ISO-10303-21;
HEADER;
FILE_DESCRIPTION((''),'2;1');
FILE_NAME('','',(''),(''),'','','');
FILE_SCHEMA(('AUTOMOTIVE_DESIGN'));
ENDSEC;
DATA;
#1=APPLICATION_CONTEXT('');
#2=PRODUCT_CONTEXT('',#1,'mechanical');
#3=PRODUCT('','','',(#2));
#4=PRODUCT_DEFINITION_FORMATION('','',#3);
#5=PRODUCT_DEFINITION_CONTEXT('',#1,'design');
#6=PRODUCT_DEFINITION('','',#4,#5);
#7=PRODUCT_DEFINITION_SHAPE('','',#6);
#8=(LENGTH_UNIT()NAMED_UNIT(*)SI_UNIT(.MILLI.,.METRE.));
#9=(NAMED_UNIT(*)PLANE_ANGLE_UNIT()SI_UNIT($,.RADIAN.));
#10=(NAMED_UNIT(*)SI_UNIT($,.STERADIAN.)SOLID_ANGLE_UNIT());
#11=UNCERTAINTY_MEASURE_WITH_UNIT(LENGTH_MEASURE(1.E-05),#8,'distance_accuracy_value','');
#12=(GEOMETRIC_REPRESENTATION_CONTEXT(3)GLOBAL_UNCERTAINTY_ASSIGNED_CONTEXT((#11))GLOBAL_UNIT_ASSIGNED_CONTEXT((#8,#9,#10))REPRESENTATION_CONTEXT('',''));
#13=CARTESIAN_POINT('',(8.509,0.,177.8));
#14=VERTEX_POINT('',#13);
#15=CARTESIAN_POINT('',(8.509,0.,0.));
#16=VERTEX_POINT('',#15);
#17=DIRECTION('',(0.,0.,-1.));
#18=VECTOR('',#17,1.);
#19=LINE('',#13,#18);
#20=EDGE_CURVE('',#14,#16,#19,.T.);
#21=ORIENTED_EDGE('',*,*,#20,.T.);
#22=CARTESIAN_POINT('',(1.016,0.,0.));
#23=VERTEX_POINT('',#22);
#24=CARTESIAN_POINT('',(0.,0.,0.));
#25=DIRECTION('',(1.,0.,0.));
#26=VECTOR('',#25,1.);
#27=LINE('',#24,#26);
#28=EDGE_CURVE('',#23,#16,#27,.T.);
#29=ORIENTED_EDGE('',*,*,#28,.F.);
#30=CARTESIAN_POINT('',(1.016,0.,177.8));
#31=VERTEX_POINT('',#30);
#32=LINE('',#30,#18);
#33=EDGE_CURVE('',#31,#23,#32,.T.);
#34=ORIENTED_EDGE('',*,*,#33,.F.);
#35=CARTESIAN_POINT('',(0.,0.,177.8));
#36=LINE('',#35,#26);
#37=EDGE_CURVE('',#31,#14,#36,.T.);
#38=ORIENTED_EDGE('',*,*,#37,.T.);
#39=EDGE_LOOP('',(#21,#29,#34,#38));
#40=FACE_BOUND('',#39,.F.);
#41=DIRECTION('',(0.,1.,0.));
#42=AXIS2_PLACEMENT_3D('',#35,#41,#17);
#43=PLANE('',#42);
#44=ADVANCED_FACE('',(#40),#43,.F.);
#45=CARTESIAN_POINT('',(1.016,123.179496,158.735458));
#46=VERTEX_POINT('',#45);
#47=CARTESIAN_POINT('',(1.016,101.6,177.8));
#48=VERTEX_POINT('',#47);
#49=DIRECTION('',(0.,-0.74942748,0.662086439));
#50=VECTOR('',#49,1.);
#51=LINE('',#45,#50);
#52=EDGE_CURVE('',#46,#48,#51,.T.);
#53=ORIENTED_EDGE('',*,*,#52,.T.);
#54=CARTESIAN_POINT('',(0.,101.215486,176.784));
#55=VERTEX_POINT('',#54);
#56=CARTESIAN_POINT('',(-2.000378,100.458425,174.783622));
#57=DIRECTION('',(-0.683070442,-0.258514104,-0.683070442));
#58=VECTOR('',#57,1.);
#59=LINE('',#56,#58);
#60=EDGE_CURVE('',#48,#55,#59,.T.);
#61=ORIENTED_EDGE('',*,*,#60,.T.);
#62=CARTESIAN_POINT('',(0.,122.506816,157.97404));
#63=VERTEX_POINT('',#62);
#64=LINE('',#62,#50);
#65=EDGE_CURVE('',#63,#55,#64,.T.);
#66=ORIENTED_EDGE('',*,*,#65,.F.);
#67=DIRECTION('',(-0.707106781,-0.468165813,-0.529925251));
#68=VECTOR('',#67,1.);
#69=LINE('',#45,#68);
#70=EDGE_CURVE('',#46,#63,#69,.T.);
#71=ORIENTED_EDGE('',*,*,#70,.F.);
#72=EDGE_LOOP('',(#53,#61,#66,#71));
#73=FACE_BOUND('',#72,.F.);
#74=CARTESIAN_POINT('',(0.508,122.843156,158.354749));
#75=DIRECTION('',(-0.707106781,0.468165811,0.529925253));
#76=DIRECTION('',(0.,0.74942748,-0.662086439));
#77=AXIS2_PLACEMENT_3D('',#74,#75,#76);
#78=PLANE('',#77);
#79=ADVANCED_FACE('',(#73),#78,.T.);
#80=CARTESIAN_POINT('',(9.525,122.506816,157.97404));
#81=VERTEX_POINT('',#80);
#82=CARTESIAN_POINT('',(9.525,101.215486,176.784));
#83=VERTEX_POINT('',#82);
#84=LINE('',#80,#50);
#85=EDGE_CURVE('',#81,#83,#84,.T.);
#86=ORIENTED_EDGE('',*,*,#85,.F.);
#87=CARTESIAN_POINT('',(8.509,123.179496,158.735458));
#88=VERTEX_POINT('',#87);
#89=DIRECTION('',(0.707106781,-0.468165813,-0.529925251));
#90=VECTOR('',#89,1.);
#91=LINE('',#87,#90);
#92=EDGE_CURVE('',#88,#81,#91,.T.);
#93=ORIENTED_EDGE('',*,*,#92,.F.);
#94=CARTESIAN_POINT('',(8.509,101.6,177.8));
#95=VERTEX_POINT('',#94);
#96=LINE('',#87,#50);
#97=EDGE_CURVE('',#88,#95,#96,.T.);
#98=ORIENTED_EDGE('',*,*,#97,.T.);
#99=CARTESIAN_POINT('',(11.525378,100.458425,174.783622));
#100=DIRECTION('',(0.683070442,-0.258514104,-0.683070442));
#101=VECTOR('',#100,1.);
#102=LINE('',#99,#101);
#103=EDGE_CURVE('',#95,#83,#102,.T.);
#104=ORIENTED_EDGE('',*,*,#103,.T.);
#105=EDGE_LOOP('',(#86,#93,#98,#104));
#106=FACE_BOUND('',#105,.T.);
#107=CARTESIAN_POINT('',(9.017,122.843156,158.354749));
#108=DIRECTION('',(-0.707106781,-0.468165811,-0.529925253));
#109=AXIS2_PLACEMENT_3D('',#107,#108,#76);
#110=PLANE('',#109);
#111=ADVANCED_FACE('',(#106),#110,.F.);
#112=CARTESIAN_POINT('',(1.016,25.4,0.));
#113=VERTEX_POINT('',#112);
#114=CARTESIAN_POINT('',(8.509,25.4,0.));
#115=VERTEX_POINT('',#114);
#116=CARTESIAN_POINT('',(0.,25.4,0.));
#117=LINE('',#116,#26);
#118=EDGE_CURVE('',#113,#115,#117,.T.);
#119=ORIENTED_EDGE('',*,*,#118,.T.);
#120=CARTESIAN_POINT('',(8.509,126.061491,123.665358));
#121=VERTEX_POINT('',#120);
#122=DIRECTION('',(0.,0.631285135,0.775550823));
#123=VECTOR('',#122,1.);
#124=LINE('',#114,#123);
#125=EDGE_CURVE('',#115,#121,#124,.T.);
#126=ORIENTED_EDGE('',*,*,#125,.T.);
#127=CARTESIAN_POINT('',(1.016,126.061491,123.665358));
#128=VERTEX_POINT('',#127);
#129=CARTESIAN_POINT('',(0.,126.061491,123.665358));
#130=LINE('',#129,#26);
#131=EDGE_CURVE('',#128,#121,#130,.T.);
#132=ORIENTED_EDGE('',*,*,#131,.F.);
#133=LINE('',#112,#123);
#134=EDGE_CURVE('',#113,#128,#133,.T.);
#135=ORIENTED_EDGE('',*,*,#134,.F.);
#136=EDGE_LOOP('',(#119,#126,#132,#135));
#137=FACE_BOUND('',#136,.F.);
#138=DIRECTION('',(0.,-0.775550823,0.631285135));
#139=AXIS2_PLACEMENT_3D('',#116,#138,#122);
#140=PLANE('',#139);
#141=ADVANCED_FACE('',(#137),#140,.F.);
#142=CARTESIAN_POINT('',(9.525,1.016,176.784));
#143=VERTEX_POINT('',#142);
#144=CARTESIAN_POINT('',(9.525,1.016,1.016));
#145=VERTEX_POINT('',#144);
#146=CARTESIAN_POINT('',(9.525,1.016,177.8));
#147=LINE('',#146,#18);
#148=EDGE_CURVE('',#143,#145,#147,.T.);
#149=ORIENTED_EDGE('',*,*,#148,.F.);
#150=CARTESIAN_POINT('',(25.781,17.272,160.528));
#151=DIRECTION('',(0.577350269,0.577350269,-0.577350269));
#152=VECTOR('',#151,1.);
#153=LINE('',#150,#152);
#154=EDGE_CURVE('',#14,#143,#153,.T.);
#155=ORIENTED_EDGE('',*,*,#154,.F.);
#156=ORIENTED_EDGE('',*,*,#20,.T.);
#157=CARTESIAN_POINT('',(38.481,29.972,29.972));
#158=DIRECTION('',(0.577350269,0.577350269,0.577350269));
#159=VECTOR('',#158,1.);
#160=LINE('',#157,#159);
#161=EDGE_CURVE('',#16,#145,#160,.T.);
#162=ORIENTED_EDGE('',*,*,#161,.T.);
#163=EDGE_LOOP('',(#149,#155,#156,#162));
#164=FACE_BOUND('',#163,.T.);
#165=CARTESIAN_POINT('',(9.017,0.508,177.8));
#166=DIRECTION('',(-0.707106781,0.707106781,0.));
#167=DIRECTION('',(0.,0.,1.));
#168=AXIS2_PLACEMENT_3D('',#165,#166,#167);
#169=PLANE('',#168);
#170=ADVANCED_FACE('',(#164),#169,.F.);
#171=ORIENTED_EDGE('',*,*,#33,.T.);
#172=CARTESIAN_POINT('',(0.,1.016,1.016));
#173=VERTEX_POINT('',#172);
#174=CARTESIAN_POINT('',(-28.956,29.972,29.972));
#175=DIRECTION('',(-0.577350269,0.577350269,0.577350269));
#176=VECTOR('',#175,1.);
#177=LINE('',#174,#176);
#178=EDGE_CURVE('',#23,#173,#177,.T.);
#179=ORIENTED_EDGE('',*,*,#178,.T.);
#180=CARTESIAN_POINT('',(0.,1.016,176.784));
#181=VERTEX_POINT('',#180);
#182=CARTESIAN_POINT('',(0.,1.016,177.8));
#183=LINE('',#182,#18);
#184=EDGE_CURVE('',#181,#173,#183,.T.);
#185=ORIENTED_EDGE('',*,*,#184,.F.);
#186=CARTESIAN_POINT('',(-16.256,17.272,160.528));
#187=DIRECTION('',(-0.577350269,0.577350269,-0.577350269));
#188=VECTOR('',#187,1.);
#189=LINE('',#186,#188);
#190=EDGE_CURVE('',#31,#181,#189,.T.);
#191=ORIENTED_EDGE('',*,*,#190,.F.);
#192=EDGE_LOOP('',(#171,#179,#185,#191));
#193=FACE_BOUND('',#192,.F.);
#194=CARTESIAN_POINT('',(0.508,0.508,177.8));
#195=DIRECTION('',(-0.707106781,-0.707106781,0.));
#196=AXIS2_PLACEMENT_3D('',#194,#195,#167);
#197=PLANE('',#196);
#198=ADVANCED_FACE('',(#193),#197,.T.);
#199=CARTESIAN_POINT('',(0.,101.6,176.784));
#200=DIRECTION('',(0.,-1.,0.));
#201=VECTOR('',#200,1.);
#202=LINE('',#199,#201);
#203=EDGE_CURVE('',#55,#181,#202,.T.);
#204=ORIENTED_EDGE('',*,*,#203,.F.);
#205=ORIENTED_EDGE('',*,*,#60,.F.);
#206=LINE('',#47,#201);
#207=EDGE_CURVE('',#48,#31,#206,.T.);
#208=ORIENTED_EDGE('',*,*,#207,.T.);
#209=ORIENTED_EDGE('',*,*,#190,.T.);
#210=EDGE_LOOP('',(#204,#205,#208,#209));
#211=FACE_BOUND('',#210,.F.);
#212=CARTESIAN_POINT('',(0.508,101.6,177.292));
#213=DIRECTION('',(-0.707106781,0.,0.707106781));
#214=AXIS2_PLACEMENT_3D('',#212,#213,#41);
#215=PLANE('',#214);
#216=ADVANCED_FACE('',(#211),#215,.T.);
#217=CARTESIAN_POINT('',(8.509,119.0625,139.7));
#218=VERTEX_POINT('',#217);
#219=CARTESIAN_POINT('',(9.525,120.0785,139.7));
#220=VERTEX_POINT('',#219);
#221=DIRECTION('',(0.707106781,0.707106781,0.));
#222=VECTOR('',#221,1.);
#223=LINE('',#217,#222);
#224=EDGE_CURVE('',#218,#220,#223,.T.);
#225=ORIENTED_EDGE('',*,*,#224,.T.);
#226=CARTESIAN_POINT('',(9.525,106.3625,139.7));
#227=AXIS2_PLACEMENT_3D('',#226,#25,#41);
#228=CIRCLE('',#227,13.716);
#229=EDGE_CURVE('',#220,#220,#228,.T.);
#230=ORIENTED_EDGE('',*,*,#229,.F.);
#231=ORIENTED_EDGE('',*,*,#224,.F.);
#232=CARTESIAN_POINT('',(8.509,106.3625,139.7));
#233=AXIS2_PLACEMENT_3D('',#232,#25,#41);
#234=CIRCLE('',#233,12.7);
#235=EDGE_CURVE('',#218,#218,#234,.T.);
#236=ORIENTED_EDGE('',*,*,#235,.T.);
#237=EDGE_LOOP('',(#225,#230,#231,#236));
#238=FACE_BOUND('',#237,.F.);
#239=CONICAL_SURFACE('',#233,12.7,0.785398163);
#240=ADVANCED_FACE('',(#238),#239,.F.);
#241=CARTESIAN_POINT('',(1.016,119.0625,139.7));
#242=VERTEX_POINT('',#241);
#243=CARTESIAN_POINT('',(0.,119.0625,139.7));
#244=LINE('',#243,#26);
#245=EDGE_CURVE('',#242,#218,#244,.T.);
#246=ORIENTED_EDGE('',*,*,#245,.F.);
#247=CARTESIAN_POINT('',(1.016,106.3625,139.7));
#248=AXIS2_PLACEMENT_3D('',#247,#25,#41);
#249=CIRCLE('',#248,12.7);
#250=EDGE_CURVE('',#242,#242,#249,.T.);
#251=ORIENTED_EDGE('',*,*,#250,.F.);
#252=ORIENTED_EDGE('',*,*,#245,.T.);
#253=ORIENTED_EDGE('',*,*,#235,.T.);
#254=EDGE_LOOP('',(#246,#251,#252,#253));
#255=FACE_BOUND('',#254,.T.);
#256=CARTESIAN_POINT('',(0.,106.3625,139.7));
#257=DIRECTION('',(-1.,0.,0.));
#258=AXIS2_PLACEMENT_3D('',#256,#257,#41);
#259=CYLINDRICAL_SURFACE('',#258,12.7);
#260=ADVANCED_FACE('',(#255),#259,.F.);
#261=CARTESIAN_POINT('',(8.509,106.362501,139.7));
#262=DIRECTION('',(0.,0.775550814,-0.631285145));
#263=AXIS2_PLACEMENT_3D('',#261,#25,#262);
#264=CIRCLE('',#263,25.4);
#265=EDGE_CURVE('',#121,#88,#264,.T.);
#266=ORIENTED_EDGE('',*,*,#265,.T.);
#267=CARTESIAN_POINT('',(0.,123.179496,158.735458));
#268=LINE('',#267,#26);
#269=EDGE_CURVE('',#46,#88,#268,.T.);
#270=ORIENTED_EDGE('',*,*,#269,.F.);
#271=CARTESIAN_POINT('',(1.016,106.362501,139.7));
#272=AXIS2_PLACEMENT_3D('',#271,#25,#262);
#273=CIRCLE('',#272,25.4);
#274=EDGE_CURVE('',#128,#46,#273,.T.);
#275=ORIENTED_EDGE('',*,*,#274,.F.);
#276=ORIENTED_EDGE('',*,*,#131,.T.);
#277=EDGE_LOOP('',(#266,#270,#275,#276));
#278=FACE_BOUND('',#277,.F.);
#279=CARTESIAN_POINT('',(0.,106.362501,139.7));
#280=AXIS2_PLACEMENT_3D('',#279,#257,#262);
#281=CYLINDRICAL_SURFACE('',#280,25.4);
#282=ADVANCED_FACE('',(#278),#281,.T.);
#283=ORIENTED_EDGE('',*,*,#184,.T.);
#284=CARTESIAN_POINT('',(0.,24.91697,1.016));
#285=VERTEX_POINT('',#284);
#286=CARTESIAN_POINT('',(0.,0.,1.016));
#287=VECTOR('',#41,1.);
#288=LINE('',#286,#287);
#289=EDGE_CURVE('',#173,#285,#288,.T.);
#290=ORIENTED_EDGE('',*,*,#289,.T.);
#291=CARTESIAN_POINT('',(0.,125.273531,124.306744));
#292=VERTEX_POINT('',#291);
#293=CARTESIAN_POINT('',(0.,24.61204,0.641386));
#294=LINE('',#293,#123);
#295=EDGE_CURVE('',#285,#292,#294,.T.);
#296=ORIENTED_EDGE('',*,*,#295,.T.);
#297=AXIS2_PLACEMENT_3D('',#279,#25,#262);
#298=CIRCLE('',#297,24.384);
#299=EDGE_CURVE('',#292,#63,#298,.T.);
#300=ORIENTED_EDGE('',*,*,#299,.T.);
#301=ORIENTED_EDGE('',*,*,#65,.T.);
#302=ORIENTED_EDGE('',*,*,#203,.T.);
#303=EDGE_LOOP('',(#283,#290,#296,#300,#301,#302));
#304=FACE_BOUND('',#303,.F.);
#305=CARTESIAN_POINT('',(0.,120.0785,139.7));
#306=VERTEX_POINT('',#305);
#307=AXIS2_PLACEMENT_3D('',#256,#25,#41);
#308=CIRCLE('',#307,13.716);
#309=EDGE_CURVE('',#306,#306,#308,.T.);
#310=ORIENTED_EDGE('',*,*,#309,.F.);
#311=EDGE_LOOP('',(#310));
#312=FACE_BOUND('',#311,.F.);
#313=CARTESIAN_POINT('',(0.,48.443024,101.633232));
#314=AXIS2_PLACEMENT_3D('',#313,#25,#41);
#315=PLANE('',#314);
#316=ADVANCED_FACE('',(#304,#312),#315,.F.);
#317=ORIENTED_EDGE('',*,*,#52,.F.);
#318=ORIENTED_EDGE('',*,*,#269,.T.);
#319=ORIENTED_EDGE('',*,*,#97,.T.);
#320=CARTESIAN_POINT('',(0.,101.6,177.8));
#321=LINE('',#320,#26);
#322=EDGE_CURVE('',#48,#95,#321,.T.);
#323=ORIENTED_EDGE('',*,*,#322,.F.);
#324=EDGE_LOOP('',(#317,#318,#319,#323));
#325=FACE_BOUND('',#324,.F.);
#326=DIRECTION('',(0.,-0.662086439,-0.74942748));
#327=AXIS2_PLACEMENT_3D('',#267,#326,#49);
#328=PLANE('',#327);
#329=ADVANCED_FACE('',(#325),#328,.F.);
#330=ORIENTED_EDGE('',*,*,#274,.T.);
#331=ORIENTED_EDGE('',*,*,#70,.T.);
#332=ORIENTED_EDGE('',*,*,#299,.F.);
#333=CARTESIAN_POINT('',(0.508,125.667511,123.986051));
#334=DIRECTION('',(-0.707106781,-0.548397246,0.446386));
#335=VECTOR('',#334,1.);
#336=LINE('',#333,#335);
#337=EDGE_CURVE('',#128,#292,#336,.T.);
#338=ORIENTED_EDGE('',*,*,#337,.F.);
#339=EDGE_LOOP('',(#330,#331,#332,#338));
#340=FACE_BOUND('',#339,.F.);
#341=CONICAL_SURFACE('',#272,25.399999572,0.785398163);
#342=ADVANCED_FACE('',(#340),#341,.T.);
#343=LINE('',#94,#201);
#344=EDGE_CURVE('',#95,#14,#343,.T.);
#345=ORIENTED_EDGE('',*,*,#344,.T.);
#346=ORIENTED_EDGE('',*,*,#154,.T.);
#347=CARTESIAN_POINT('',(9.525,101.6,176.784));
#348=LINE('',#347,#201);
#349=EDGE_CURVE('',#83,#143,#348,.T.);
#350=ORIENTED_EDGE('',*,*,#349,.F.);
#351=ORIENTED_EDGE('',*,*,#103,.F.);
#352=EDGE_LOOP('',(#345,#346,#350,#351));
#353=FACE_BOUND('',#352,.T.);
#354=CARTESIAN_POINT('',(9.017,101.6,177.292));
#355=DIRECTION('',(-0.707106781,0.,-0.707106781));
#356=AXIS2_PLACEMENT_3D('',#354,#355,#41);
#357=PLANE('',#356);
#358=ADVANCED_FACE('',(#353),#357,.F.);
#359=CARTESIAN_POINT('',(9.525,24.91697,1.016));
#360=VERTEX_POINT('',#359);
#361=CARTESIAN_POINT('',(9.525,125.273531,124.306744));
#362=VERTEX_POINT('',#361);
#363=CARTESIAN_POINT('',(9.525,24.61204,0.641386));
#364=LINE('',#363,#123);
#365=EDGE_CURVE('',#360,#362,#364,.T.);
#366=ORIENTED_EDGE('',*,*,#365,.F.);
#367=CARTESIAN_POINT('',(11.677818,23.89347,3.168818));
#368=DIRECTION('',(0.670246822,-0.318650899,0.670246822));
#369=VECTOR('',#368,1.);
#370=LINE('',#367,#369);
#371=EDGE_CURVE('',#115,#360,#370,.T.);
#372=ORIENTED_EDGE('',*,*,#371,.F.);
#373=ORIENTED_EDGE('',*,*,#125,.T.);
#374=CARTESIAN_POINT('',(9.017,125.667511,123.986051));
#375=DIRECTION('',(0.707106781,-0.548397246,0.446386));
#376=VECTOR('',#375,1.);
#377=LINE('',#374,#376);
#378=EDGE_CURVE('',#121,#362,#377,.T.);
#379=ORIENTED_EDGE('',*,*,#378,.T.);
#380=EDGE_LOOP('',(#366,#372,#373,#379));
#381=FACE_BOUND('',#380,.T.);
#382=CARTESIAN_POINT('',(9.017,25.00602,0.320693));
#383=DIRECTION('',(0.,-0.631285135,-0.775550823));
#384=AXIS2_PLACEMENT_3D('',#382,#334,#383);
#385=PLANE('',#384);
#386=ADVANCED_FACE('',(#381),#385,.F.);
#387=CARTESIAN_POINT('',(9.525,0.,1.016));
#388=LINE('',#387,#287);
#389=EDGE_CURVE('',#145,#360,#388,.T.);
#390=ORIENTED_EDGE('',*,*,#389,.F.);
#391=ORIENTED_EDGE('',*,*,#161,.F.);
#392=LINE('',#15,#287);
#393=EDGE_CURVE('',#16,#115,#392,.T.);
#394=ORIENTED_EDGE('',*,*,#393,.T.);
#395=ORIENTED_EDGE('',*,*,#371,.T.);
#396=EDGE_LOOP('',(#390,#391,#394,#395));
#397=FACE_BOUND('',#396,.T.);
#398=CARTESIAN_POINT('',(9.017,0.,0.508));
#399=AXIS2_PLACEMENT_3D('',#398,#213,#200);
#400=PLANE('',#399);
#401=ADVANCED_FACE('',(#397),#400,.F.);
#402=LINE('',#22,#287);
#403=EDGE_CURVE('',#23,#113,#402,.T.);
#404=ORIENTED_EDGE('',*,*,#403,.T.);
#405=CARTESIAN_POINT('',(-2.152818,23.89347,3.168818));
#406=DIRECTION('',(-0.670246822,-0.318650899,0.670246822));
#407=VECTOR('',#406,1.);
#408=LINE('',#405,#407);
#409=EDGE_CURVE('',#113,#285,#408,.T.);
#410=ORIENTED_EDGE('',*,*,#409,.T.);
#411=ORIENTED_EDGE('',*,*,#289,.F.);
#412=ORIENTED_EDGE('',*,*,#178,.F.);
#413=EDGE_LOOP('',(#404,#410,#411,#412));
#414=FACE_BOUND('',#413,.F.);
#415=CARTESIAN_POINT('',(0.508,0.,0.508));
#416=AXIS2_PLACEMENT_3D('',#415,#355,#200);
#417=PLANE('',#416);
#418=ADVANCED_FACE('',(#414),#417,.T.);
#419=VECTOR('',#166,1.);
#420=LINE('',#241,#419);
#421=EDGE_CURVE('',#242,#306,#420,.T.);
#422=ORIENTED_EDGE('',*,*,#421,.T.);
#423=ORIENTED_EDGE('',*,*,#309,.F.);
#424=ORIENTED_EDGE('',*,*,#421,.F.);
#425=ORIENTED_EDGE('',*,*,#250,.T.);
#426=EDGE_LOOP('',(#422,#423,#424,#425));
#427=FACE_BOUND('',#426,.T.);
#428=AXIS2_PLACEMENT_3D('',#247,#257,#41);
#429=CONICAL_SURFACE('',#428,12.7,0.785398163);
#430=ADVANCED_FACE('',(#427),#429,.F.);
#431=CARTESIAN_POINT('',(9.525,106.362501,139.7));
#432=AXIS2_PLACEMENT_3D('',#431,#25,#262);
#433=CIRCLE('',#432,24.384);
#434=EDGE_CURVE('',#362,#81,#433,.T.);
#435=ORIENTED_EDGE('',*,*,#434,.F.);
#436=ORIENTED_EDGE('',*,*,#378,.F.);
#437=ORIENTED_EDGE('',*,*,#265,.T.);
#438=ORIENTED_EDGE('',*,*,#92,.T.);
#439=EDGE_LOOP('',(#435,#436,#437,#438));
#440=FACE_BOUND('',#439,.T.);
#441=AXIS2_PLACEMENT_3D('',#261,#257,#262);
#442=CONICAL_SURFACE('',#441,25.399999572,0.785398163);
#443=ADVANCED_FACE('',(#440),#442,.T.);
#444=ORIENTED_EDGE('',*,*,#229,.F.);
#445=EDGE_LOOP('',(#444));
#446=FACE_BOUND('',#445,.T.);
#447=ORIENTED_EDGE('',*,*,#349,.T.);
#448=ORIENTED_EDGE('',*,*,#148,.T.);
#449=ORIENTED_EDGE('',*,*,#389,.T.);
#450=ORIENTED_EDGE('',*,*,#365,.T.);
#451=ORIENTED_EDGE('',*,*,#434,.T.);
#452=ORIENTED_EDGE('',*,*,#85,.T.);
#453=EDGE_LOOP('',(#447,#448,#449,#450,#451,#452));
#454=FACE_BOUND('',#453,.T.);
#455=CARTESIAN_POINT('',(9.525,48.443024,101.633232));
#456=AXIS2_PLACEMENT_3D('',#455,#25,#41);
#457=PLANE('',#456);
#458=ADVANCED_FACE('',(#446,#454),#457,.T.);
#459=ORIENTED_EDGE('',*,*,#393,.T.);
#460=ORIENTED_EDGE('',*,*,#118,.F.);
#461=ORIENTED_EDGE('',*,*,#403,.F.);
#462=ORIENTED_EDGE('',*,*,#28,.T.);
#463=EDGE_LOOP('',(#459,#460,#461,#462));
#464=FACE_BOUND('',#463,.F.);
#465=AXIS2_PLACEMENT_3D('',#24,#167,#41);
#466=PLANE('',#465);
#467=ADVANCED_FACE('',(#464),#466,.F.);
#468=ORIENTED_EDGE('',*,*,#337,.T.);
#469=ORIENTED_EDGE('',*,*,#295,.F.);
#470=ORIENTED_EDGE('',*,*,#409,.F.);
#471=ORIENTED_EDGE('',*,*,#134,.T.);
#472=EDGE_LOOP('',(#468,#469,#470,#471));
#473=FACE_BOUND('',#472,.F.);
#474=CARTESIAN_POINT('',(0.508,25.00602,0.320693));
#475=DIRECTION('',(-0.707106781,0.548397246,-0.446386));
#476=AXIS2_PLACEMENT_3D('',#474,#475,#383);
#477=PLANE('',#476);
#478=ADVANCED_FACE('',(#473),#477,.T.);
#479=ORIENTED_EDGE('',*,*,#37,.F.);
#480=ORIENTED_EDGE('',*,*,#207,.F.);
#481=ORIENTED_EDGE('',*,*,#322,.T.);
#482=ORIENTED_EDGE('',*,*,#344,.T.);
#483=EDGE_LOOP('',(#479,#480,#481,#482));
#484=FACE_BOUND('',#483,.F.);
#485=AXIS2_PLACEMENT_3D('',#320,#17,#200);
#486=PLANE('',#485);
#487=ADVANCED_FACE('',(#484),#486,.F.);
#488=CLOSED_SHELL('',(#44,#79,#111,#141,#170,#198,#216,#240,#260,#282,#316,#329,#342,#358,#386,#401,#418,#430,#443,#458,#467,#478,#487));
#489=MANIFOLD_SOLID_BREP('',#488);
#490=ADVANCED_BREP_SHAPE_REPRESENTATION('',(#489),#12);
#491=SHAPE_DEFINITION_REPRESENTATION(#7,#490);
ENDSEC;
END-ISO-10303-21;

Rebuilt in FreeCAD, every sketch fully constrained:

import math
import FreeCAD as App
import Part
import Sketcher

V = App.Vector
Q = App.Units.Quantity


def edges_at(feature, points):
    """Names of the edges that pass closest to the given points."""
    edges = feature.Shape.Edges
    near = lambda p: min(range(len(edges)), key=lambda i: edges[i].distToShape(Part.Vertex(*p))[0])
    return sorted({f"Edge{near(p) + 1}" for p in points})

doc = App.newDocument("Part")
body = doc.addObject("PartDesign::Body", "Body")

sketch1 = body.newObject("Sketcher::SketchObject", "Sketch")
sketch1.AttachmentSupport = (doc.getObject("YZ_Plane"), [""])
sketch1.MapMode = "FlatFace"
sketch1.addGeometry(Part.LineSegment(V(0, 178, 0), V(0, 0, 0)), False)
sketch1.addGeometry(Part.LineSegment(V(0, 0, 0), V(25, 0, 0)), False)
sketch1.addGeometry(Part.LineSegment(V(25, 0, 0), V(126, 124, 0)), False)
sketch1.addGeometry(Part.ArcOfCircle(Part.Circle(V(106, 140, 0), V(0, 0, 1), 25), math.radians(-39), math.radians(49)), False)
sketch1.addGeometry(Part.LineSegment(V(123, 159, 0), V(102, 178, 0)), False)
sketch1.addGeometry(Part.LineSegment(V(102, 178, 0), V(0, 178, 0)), False)
sketch1.addGeometry(Part.Circle(V(106, 140, 0), V(0, 0, 1), 13), False)
sketch1.addConstraint(Sketcher.Constraint("Coincident", 0, 2, 1, 1))
sketch1.addConstraint(Sketcher.Constraint("Coincident", 1, 2, 2, 1))
sketch1.addConstraint(Sketcher.Constraint("Tangent", 2, 2, 3, 1))
sketch1.addConstraint(Sketcher.Constraint("Tangent", 3, 2, 4, 1))
sketch1.addConstraint(Sketcher.Constraint("Coincident", 4, 2, 5, 1))
sketch1.addConstraint(Sketcher.Constraint("Coincident", 5, 2, 0, 1))
sketch1.addConstraint(Sketcher.Constraint("Vertical", 0))
sketch1.addConstraint(Sketcher.Constraint("Horizontal", 1))
sketch1.addConstraint(Sketcher.Constraint("Horizontal", 5))
sketch1.addConstraint(Sketcher.Constraint("Coincident", 0, 2, -1, 1))
sketch1.addConstraint(Sketcher.Constraint("Coincident", 6, 3, 3, 3))
sketch1.addConstraint(Sketcher.Constraint("Diameter", 6, Q("1 in")))
sketch1.addConstraint(Sketcher.Constraint("Radius", 3, Q("1 in")))
sketch1.addConstraint(Sketcher.Constraint("DistanceX", 1, 1, 1, 2, Q("1 in")))
sketch1.addConstraint(Sketcher.Constraint("DistanceX", 5, 2, 5, 1, Q("4 in")))
sketch1.addConstraint(Sketcher.Constraint("DistanceY", 0, 2, 0, 1, Q("7 in")))
sketch1.addConstraint(Sketcher.Constraint("DistanceY", -1, 1, 3, 3, Q("5.5 in")))
sketch1.addConstraint(Sketcher.Constraint("DistanceX", -1, 1, 3, 3, Q("4.1875 in")))
pad1 = body.newObject("PartDesign::Pad", "Pad")
pad1.Profile = sketch1
pad1.Length = Q("0.375 in")
doc.recompute()

chamfer = body.newObject("PartDesign::Chamfer", "Chamfer")
chamfer.Base = (pad1, edges_at(pad1, [
    (9.525, 0, 88.9),
    (9.525, 12.7, 0),
    (9.525, 75.731, 61.833),
    (9.525, 131.677, 141.78),
    (9.525, 112.39, 168.268),
    (9.525, 50.8, 177.8),
    (9.525, 93.662, 139.7),
    (0, 0, 88.9),
    (0, 12.7, 0),
    (0, 75.731, 61.833),
    (0, 131.677, 141.78),
    (0, 112.39, 168.268),
    (0, 50.8, 177.8),
    (0, 93.662, 139.7),
]))
chamfer.Size = Q("0.04 in")

doc.recompute()
